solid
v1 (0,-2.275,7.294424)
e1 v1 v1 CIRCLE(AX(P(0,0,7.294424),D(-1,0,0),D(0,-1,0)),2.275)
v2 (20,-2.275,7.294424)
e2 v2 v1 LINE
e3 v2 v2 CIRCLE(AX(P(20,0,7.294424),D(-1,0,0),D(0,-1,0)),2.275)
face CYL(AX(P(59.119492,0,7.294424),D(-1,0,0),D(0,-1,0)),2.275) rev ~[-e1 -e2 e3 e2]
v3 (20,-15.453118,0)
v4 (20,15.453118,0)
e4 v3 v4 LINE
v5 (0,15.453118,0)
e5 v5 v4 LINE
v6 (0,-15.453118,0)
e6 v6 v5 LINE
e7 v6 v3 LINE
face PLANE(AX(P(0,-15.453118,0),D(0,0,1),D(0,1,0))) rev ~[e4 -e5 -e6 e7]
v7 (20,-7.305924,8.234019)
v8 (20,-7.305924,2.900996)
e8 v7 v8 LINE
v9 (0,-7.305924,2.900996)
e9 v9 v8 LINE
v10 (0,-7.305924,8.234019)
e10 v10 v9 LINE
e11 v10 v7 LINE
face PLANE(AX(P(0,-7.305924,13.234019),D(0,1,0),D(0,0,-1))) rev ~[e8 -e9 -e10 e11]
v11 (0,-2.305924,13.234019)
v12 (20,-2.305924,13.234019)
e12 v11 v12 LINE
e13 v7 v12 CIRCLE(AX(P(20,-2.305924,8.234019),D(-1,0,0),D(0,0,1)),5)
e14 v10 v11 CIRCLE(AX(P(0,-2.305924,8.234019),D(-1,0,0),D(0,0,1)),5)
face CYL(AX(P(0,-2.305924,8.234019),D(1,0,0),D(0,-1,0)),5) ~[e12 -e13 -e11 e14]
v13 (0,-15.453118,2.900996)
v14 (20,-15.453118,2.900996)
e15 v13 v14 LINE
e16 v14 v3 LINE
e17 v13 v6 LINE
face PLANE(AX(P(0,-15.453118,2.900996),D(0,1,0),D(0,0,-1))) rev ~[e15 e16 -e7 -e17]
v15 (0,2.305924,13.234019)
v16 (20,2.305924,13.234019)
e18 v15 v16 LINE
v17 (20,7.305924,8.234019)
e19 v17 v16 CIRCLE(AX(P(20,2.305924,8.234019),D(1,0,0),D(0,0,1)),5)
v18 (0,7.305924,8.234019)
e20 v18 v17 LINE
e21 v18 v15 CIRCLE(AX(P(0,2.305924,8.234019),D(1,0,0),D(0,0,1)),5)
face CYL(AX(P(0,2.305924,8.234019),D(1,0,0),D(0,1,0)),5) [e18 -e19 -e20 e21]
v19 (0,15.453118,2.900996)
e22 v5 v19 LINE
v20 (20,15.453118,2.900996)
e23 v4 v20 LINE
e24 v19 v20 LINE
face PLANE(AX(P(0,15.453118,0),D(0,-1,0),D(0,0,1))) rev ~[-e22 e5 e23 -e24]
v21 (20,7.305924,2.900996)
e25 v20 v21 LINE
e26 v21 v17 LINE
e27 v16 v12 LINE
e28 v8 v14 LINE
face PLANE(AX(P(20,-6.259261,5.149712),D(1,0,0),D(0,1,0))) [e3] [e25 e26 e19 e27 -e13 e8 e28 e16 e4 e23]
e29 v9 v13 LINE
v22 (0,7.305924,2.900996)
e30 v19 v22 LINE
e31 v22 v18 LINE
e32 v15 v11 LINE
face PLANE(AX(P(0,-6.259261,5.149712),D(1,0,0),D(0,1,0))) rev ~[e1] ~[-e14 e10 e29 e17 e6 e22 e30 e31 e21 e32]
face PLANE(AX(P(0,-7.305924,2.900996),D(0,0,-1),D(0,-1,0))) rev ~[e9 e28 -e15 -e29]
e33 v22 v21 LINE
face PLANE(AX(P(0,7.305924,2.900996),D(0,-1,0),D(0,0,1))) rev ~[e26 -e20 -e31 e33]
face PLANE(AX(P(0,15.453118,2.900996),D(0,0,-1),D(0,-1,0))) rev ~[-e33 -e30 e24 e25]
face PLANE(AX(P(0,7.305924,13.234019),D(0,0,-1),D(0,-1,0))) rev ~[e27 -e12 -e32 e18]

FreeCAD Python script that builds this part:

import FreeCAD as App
import Part
import Sketcher
from FreeCAD import Vector


def edges_at(feature, points):
    """Names of the edges that pass closest to the given points."""
    edges = feature.Shape.Edges
    near = lambda p: min(range(len(edges)), key=lambda i: edges[i].distToShape(Part.Vertex(*p))[0])
    return sorted({f"Edge{near(p) + 1}" for p in points})

doc = App.newDocument("Part")
body = doc.addObject("PartDesign::Body", "Body")

# Sketch on YZ plane
sketch1 = doc.addObject("Sketcher::SketchObject", "Sketch")
body.addObject(sketch1)
sketch1.AttachmentSupport = (doc.YZ_Plane, [""])
sketch1.MapMode = "FlatFace"
sketch1.addGeometry(Part.LineSegment(Vector(-15.453118, 0, 0), Vector(15.453118, 0, 0)), False)
sketch1.addGeometry(Part.LineSegment(Vector(15.453118, 0, 0), Vector(15.453118, 2.900996, 0)), False)
sketch1.addGeometry(Part.LineSegment(Vector(15.453118, 2.900996, 0), Vector(7.305924, 2.900996, 0)), False)
sketch1.addGeometry(Part.LineSegment(Vector(7.305924, 2.900996, 0), Vector(7.305924, 13.234019, 0)), False)
sketch1.addGeometry(Part.LineSegment(Vector(7.305924, 13.234019, 0), Vector(-7.305924, 13.234019, 0)), False)
sketch1.addGeometry(Part.LineSegment(Vector(-7.305924, 13.234019, 0), Vector(-7.305924, 2.900996, 0)), False)
sketch1.addGeometry(Part.LineSegment(Vector(-7.305924, 2.900996, 0), Vector(-15.453118, 2.900996, 0)), False)
sketch1.addGeometry(Part.LineSegment(Vector(-15.453118, 2.900996, 0), Vector(-15.453118, 0, 0)), False)
sketch1.addConstraint(Sketcher.Constraint("Coincident", 0, 2, 1, 1))
sketch1.addConstraint(Sketcher.Constraint("Coincident", 1, 2, 2, 1))
sketch1.addConstraint(Sketcher.Constraint("Coincident", 2, 2, 3, 1))
sketch1.addConstraint(Sketcher.Constraint("Coincident", 3, 2, 4, 1))
sketch1.addConstraint(Sketcher.Constraint("Coincident", 4, 2, 5, 1))
sketch1.addConstraint(Sketcher.Constraint("Coincident", 5, 2, 6, 1))
sketch1.addConstraint(Sketcher.Constraint("Coincident", 6, 2, 7, 1))
sketch1.addConstraint(Sketcher.Constraint("Coincident", 7, 2, 0, 1))
sketch1.addConstraint(Sketcher.Constraint("Horizontal", 0))
sketch1.addConstraint(Sketcher.Constraint("Vertical", 1))
sketch1.addConstraint(Sketcher.Constraint("Horizontal", 2))
sketch1.addConstraint(Sketcher.Constraint("Vertical", 3))
sketch1.addConstraint(Sketcher.Constraint("Horizontal", 4))
sketch1.addConstraint(Sketcher.Constraint("Vertical", 5))
sketch1.addConstraint(Sketcher.Constraint("Horizontal", 6))
sketch1.addConstraint(Sketcher.Constraint("Vertical", 7))
sketch1.addConstraint(Sketcher.Constraint("Symmetric", 0, 2, 7, 2, -1, 1))
sketch1.addConstraint(Sketcher.Constraint("Symmetric", 2, 2, 5, 2, -2))
sketch1.addConstraint(Sketcher.Constraint("DistanceX", 0, 1, 0, 2, 30.906236))
sketch1.addConstraint(Sketcher.Constraint("DistanceX", 2, 2, 2, 1, 8.147194))
sketch1.addConstraint(Sketcher.Constraint("DistanceY", 1, 1, 1, 2, 2.900996))
sketch1.addConstraint(Sketcher.Constraint("DistanceY", 3, 1, 3, 2, 10.333023))
pad1 = doc.addObject("PartDesign::Pad", "Pad")
body.addObject(pad1)
pad1.Profile = sketch1
pad1.Length = 20

# Sketch on YZ plane
sketch2 = doc.addObject("Sketcher::SketchObject", "Sketch001")
body.addObject(sketch2)
sketch2.AttachmentSupport = (doc.YZ_Plane, [""])
sketch2.MapMode = "FlatFace"
sketch2.AttachmentOffset = App.Placement(Vector(0, 0, 20), App.Rotation())
sketch2.addGeometry(Part.Circle(Vector(0, 7.294424, 0), Vector(0, 0, 1), 2.275), False)
sketch2.addConstraint(Sketcher.Constraint("PointOnObject", 0, 3, -2))
sketch2.addConstraint(Sketcher.Constraint("Diameter", 0, 4.55))
sketch2.addConstraint(Sketcher.Constraint("DistanceY", -1, 1, 0, 3, 7.294424))
doc.recompute()
hole = doc.addObject("PartDesign::Hole", "Hole")
body.addObject(hole)
hole.Profile = sketch2
hole.ThreadType = "None"
hole.Diameter = 4.55
hole.DepthType = "ThroughAll"
doc.recompute()

fillet = doc.addObject("PartDesign::Fillet", "Fillet")
body.addObject(fillet)
fillet.Base = (hole, edges_at(hole, [(10, 7.306, 13.234), (10, -7.306, 13.234)]))
fillet.Radius = 5

doc.recompute()
